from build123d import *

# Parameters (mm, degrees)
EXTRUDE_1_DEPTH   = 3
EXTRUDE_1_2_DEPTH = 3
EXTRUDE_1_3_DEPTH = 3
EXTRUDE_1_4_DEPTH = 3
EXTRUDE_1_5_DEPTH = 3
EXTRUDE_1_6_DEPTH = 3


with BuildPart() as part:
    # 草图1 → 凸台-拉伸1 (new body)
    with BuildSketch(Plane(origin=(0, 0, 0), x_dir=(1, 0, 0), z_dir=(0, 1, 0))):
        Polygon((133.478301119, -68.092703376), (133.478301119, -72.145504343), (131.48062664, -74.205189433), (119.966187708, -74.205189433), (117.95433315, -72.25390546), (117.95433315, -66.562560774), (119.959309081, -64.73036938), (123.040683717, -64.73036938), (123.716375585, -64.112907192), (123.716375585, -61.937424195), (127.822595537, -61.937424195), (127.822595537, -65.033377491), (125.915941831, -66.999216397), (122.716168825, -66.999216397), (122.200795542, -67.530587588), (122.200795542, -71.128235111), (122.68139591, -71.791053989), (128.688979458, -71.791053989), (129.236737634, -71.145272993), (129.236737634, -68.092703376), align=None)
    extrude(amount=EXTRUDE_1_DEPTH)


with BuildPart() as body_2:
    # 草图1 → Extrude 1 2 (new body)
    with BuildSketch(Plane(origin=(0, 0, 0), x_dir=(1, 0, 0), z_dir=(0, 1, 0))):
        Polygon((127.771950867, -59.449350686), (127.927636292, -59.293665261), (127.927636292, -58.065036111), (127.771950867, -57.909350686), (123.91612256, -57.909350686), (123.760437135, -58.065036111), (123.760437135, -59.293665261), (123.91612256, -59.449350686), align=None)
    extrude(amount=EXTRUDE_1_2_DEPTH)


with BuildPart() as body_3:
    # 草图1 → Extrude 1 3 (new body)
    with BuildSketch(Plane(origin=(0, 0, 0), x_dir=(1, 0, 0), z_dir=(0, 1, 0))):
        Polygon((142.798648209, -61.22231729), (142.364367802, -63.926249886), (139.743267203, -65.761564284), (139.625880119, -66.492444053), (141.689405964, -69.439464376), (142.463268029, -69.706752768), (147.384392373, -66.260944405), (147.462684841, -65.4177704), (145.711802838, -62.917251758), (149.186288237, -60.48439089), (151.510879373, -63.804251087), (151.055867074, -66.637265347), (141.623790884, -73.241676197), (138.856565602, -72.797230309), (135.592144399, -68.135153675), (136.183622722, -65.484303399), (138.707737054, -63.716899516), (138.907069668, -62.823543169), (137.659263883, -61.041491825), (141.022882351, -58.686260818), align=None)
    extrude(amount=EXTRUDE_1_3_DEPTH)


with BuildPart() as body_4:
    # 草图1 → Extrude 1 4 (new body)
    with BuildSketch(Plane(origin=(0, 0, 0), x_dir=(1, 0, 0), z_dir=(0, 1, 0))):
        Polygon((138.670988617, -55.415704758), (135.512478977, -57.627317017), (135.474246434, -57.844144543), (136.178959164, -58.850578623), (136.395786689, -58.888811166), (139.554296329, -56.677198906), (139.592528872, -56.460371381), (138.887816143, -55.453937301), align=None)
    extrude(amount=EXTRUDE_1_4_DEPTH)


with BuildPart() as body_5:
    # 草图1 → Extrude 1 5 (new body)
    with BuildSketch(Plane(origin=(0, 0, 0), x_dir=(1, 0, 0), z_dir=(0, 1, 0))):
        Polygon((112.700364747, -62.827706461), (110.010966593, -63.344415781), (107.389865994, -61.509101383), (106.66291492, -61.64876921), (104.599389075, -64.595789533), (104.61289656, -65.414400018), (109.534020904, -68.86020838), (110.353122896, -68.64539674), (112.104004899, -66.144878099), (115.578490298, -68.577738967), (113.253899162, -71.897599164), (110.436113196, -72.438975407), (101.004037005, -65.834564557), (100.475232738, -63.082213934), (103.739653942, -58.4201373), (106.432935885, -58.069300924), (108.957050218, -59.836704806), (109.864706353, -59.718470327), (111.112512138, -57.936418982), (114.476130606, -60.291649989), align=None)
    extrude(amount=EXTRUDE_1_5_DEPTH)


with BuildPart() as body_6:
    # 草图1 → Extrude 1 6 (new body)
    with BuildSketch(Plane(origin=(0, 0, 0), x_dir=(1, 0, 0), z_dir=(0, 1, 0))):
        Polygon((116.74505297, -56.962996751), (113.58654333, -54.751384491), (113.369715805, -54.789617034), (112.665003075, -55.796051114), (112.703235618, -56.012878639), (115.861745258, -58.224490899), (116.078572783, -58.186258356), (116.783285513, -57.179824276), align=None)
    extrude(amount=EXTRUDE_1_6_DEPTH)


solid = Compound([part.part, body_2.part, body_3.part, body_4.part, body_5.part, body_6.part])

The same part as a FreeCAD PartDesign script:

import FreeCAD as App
import Part
import Sketcher
from FreeCAD import Vector
Q = App.Units.Quantity


def add_polygon(sketch, points):
    """Adds a closed chain of lines whose ends are joined by coincident constraints."""
    first, n = sketch.GeometryCount, len(points)
    for a, b in zip(points, points[1:] + points[:1]):
        sketch.addGeometry(Part.LineSegment(App.Vector(*a, 0), App.Vector(*b, 0)), False)
    for i in range(n):
        sketch.addConstraint(Sketcher.Constraint("Coincident", first + i, 2, first + (i + 1) % n, 1))

doc = App.newDocument("Part")
body = doc.addObject("PartDesign::Body", "Body")

sketch1 = body.newObject("Sketcher::SketchObject", "Sketch")
sketch1.AttachmentSupport = (doc.getObject("XZ_Plane"), [""])
sketch1.MapMode = "FlatFace"
add_polygon(sketch1, [(133.5, 72.1), (133.5, 68.1), (129.2, 68.1), (129.2, 71.1), (128.7, 71.8), (122.7, 71.8), (122.2, 71.1), (122.2, 67.5), (122.7, 67), (125.9, 67), (127.8, 65), (127.8, 61.9), (123.7, 61.9), (123.7, 64.1), (123, 64.7), (120, 64.7), (118, 66.6), (118, 72.3), (120, 74.2), (131.5, 74.2)])
sketch1.addConstraint([
    Sketcher.Constraint("Vertical", 0),
    Sketcher.Constraint("Horizontal", 1),
    Sketcher.Constraint("Vertical", 2),
    Sketcher.Constraint("Horizontal", 4),
    Sketcher.Constraint("Vertical", 6),
    Sketcher.Constraint("Horizontal", 8),
    Sketcher.Constraint("Vertical", 10),
    Sketcher.Constraint("Horizontal", 11),
    Sketcher.Constraint("Vertical", 12),
    Sketcher.Constraint("Horizontal", 14),
    Sketcher.Constraint("Vertical", 16),
    Sketcher.Constraint("Horizontal", 18),
    Sketcher.Constraint("Parallel", 7, 9),
    Sketcher.Constraint("Parallel", 13, 15),
    Sketcher.Constraint("Perpendicular", 9, 17),
    Sketcher.Constraint("Perpendicular", 17, 19),
    Sketcher.Constraint("DistanceY", 0, 2, 0, 1, 4.052801),
    Sketcher.Constraint("Distance", 3, 0.846801),
    Sketcher.Constraint("DistanceX", 11, 2, 11, 1, 4.10622),
    Sketcher.Constraint("DistanceX", 18, 1, 18, 2, 11.514439),
    Sketcher.Constraint("DistanceY", 2, 1, 2, 2, 3.05257),
    Sketcher.Constraint("DistanceX", -1, 1, 0, 2, 133.478301),
    Sketcher.Constraint("DistanceX", 5, 2, 4, 2, 0.4806),
    Sketcher.Constraint("DistanceX", 6, 2, 9, 2, 5.6218),
    Sketcher.Constraint("DistanceY", 6, 2, 17, 2, 6.674602),
    Sketcher.Constraint("Distance", 5, 0.818722),
    Sketcher.Constraint("Distance", 17, 2.802689),
    Sketcher.Constraint("Distance", 19, 2.869322),
    Sketcher.Constraint("DistanceX", 1, 2, 1, 1, 4.241563),
    Sketcher.Constraint("DistanceX", 4, 2, 4, 1, 6.007584),
    Sketcher.Constraint("DistanceX", 8, 1, 8, 2, 3.199773),
    Sketcher.Constraint("DistanceX", 14, 2, 14, 1, 3.081375),
    Sketcher.Constraint("DistanceY", 6, 2, 6, 1, 3.597648),
    Sketcher.Constraint("DistanceY", 10, 2, 10, 1, 3.095953),
    Sketcher.Constraint("DistanceY", 12, 1, 12, 2, 2.175483),
    Sketcher.Constraint("DistanceY", 16, 1, 16, 2, 5.691345),
    Sketcher.Constraint("DistanceX", -1, 1, 3, 2, 128.688979),
    Sketcher.Constraint("DistanceX", -1, 1, 7, 2, 122.716169),
    Sketcher.Constraint("DistanceY", -1, 1, 13, 2, 64.730369),
    Sketcher.Constraint("DistanceX", -1, 1, 14, 2, 119.959309),
])
pad1 = body.newObject("PartDesign::Pad", "Pad")
pad1.Profile = sketch1
pad1.Length = 3
pad1.Reversed = True
body2 = doc.addObject("PartDesign::Body", "Body001")

sketch2 = body2.newObject("Sketcher::SketchObject", "Sketch001")
sketch2.AttachmentSupport = (doc.getObject("XZ_Plane001"), [""])
sketch2.MapMode = "FlatFace"
add_polygon(sketch2, [(127.77, 59.45), (127.93, 59.29), (127.93, 58.07), (127.77, 57.91), (123.92, 57.91), (123.76, 58.07), (123.76, 59.29), (123.92, 59.45)])
sketch2.addConstraint([
    Sketcher.Constraint("Vertical", 1),
    Sketcher.Constraint("Horizontal", 3),
    Sketcher.Constraint("Vertical", 5),
    Sketcher.Constraint("Horizontal", 7),
    Sketcher.Constraint("Perpendicular", 0, 2),
    Sketcher.Constraint("Perpendicular", 2, 4),
    Sketcher.Constraint("Perpendicular", 4, 6),
    Sketcher.Constraint("Horizontal", 1, 2, 4, 2),
    Sketcher.Constraint("Horizontal", 0, 2, 5, 2),
    Sketcher.Constraint("Vertical", 3, 2, 6, 2),
    Sketcher.Constraint("Vertical", 2, 2, 7, 2),
    Sketcher.Constraint("DistanceY", 3, 2, 6, 2, 1.54),
    Sketcher.Constraint("DistanceX", 3, 2, 3, 1, 3.855828),
    Sketcher.Constraint("DistanceY", 1, 2, 1, 1, 1.228629),
    Sketcher.Constraint("DistanceX", -1, 1, 2, 2, 127.771951),
    Sketcher.Constraint("DistanceY", -1, 1, 2, 2, 57.909351),
])
pad2 = body2.newObject("PartDesign::Pad", "Pad001")
pad2.Profile = sketch2
pad2.Length = 3
pad2.Reversed = True
body3 = doc.addObject("PartDesign::Body", "Body002")

sketch3 = body3.newObject("Sketcher::SketchObject", "Sketch002")
sketch3.AttachmentSupport = (doc.getObject("XZ_Plane002"), [""])
sketch3.MapMode = "FlatFace"
add_polygon(sketch3, [(142.4, 63.9), (142.8, 61.2), (141, 58.7), (137.7, 61), (138.9, 62.8), (138.7, 63.7), (136.2, 65.5), (135.6, 68.1), (138.9, 72.8), (141.6, 73.2), (151.1, 66.6), (151.5, 63.8), (149.2, 60.5), (145.7, 62.9), (147.5, 65.4), (147.4, 66.3), (142.5, 69.7), (141.7, 69.4), (139.6, 66.5), (139.7, 65.8)])
sketch3.addConstraint([
    Sketcher.Constraint("Perpendicular", 1, 2),
    Sketcher.Constraint("Perpendicular", 2, 3),
    Sketcher.Constraint("Perpendicular", 3, 5),
    Sketcher.Constraint("Parallel", 4, 6),
    Sketcher.Constraint("Perpendicular", 5, 7),
    Sketcher.Constraint("Perpendicular", 0, 8),
    Sketcher.Constraint("Perpendicular", 7, 9),
    Sketcher.Constraint("Perpendicular", 8, 10),
    Sketcher.Constraint("Perpendicular", 9, 11),
    Sketcher.Constraint("Perpendicular", 11, 12),
    Sketcher.Constraint("Perpendicular", 12, 13),
    Sketcher.Constraint("Perpendicular", 13, 15),
    Sketcher.Constraint("Perpendicular", 15, 17),
    Sketcher.Constraint("Parallel", 10, 18),
    Sketcher.Constraint("Perpendicular", 17, 19),
    Sketcher.Constraint("Angle", 1, Q("-125 deg")),
    Sketcher.Constraint("DistanceY", 12, 2, 10, 2, 0.886999),
    Sketcher.Constraint("DistanceY", 12, 2, 19, 2, 1.008998),
    Sketcher.Constraint("Distance", 11, 4.052801),
    Sketcher.Constraint("Distance", 14, 0.846801),
    Sketcher.Constraint("DistanceY", -1, 1, 4, 2, 63.7169),
    Sketcher.Constraint("DistanceX", 2, 2, 7, 2, 1.197302),
    Sketcher.Constraint("DistanceY", 6, 2, 15, 2, 1.571599),
    Sketcher.Constraint("DistanceY", 3, 2, 17, 2, 3.668901),
    Sketcher.Constraint("DistanceY", 18, 2, 16, 2, 3.6779),
    Sketcher.Constraint("DistanceX", 18, 2, 19, 2, 2.621101),
    Sketcher.Constraint("DistanceX", 3, 2, 19, 2, 3.457298),
    Sketcher.Constraint("Distance", 2, 4.10622),
    Sketcher.Constraint("Distance", 8, 2.802689),
    Sketcher.Constraint("Distance", 9, 11.514439),
    Sketcher.Constraint("Distance", 10, 2.869322),
    Sketcher.Constraint("Distance", 13, 3.05257),
    Sketcher.Constraint("Distance", 16, 0.818722),
    Sketcher.Constraint("DistanceX", -1, 1, 0, 2, 142.798648),
    Sketcher.Constraint("DistanceY", -1, 1, 1, 2, 58.686261),
    Sketcher.Constraint("DistanceX", -1, 1, 3, 2, 138.90707),
    Sketcher.Constraint("DistanceY", -1, 1, 7, 2, 72.79723),
    Sketcher.Constraint("DistanceX", -1, 1, 8, 2, 141.623791),
    Sketcher.Constraint("DistanceX", -1, 1, 15, 2, 142.463268),
    Sketcher.Constraint("DistanceX", 4, 2, 0, 2, 4.090911),
])
pad3 = body3.newObject("PartDesign::Pad", "Pad002")
pad3.Profile = sketch3
pad3.Length = 3
pad3.Reversed = True
body4 = doc.addObject("PartDesign::Body", "Body003")

sketch4 = body4.newObject("Sketcher::SketchObject", "Sketch003")
sketch4.AttachmentSupport = (doc.getObject("XZ_Plane003"), [""])
sketch4.MapMode = "FlatFace"
add_polygon(sketch4, [(138.67, 55.42), (135.51, 57.63), (135.47, 57.84), (136.18, 58.85), (136.4, 58.89), (139.55, 56.68), (139.59, 56.46), (138.89, 55.45)])
sketch4.addConstraint([
    Sketcher.Constraint("Perpendicular", 0, 2),
    Sketcher.Constraint("Perpendicular", 1, 3),
    Sketcher.Constraint("Perpendicular", 2, 4),
    Sketcher.Constraint("Perpendicular", 3, 5),
    Sketcher.Constraint("Perpendicular", 4, 6),
    Sketcher.Constraint("Perpendicular", 5, 7),
    Sketcher.Constraint("Equal", 1, 3),
    Sketcher.Constraint("Equal", 0, 4),
    Sketcher.Constraint("Equal", 3, 5),
    Sketcher.Constraint("Angle", 0, Q("145 deg")),
    Sketcher.Constraint("Angle", 1, Q("100 deg")),
    Sketcher.Constraint("DistanceY", -1, 1, 4, 2, 56.677199),
    Sketcher.Constraint("Distance", 0, 3.855828),
    Sketcher.Constraint("Distance", 2, 1.228629),
    Sketcher.Constraint("DistanceX", -1, 1, 0, 2, 135.512479),
    Sketcher.Constraint("DistanceX", -1, 1, 2, 2, 136.178959),
])
pad4 = body4.newObject("PartDesign::Pad", "Pad003")
pad4.Profile = sketch4
pad4.Length = 3
pad4.Reversed = True
body5 = doc.addObject("PartDesign::Body", "Body004")

sketch5 = body5.newObject("Sketcher::SketchObject", "Sketch004")
sketch5.AttachmentSupport = (doc.getObject("XZ_Plane004"), [""])
sketch5.MapMode = "FlatFace"
add_polygon(sketch5, [(110, 63.3), (112.7, 62.8), (114.5, 60.3), (111.1, 57.9), (109.9, 59.7), (109, 59.8), (106.4, 58.1), (103.7, 58.4), (100.5, 63.1), (101, 65.8), (110.4, 72.4), (113.3, 71.9), (115.6, 68.6), (112.1, 66.1), (110.4, 68.6), (109.5, 68.9), (104.6, 65.4), (104.6, 64.6), (106.7, 61.6), (107.4, 61.5)])
sketch5.addConstraint([
    Sketcher.Constraint("Perpendicular", 1, 2),
    Sketcher.Constraint("Perpendicular", 2, 3),
    Sketcher.Constraint("Perpendicular", 3, 5),
    Sketcher.Constraint("Parallel", 4, 6),
    Sketcher.Constraint("Perpendicular", 5, 7),
    Sketcher.Constraint("Perpendicular", 0, 8),
    Sketcher.Constraint("Perpendicular", 7, 9),
    Sketcher.Constraint("Perpendicular", 8, 10),
    Sketcher.Constraint("Perpendicular", 9, 11),
    Sketcher.Constraint("Perpendicular", 11, 12),
    Sketcher.Constraint("Perpendicular", 12, 13),
    Sketcher.Constraint("Perpendicular", 13, 15),
    Sketcher.Constraint("Perpendicular", 15, 17),
    Sketcher.Constraint("Parallel", 10, 18),
    Sketcher.Constraint("Perpendicular", 17, 19),
    Sketcher.Constraint("Angle", 1, Q("-55 deg")),
    Sketcher.Constraint("DistanceY", 4, 2, 0, 2, 2.991002),
    Sketcher.Constraint("Distance", 11, 4.052801),
    Sketcher.Constraint("Distance", 14, 0.846801),
    Sketcher.Constraint("DistanceY", -1, 1, 5, 2, 58.069301),
    Sketcher.Constraint("DistanceX", -1, 1, 10, 2, 113.253899),
    Sketcher.Constraint("DistanceY", -1, 1, 10, 2, 71.897599),
    Sketcher.Constraint("DistanceY", -1, 1, 15, 2, 65.4144),
    Sketcher.Constraint("DistanceY", -1, 1, 18, 2, 61.509101),
    Sketcher.Constraint("DistanceX", 8, 2, 5, 2, 5.428899),
    Sketcher.Constraint("DistanceX", 14, 2, 13, 2, 0.819102),
    Sketcher.Constraint("DistanceY", 3, 2, 17, 2, 1.930299),
    Sketcher.Constraint("DistanceX", 19, 2, 0, 2, 2.689398),
    Sketcher.Constraint("DistanceX", 18, 2, 19, 2, 2.621101),
    Sketcher.Constraint("Distance", 2, 4.10622),
    Sketcher.Constraint("Distance", 8, 2.802689),
    Sketcher.Constraint("Distance", 9, 11.514439),
    Sketcher.Constraint("Distance", 10, 2.869322),
    Sketcher.Constraint("Distance", 13, 3.05257),
    Sketcher.Constraint("Distance", 16, 0.818722),
    Sketcher.Constraint("DistanceX", -1, 1, 1, 2, 114.476131),
    Sketcher.Constraint("DistanceY", -1, 1, 1, 2, 60.29165),
    Sketcher.Constraint("DistanceY", -1, 1, 3, 2, 59.71847),
    Sketcher.Constraint("DistanceX", -1, 1, 4, 2, 108.95705),
    Sketcher.Constraint("DistanceY", -1, 1, 12, 2, 66.144878),
])
pad5 = body5.newObject("PartDesign::Pad", "Pad004")
pad5.Profile = sketch5
pad5.Length = 3
pad5.Reversed = True
body6 = doc.addObject("PartDesign::Body", "Body005")

sketch6 = body6.newObject("Sketcher::SketchObject", "Sketch005")
sketch6.AttachmentSupport = (doc.getObject("XZ_Plane005"), [""])
sketch6.MapMode = "FlatFace"
add_polygon(sketch6, [(116.75, 56.96), (113.59, 54.75), (113.37, 54.79), (112.67, 55.8), (112.7, 56.01), (115.86, 58.22), (116.08, 58.19), (116.78, 57.18)])
sketch6.addConstraint([
    Sketcher.Constraint("Perpendicular", 0, 2),
    Sketcher.Constraint("Perpendicular", 1, 3),
    Sketcher.Constraint("Perpendicular", 2, 4),
    Sketcher.Constraint("Perpendicular", 3, 5),
    Sketcher.Constraint("Perpendicular", 4, 6),
    Sketcher.Constraint("Perpendicular", 5, 7),
    Sketcher.Constraint("Equal", 1, 3),
    Sketcher.Constraint("Equal", 0, 4),
    Sketcher.Constraint("Equal", 3, 5),
    Sketcher.Constraint("Angle", 0, Q("-145 deg")),
    Sketcher.Constraint("Angle", 1, Q("170 deg")),
    Sketcher.Constraint("DistanceX", 0, 2, 4, 2, 2.275202),
    Sketcher.Constraint("Distance", 0, 3.855828),
    Sketcher.Constraint("Distance", 2, 1.228629),
    Sketcher.Constraint("DistanceY", -1, 1, 2, 2, 55.796051),
    Sketcher.Constraint("DistanceX", -1, 1, 0, 2, 113.586543),
])
pad6 = body6.newObject("PartDesign::Pad", "Pad005")
pad6.Profile = sketch6
pad6.Length = 3
pad6.Reversed = True

doc.recompute()
